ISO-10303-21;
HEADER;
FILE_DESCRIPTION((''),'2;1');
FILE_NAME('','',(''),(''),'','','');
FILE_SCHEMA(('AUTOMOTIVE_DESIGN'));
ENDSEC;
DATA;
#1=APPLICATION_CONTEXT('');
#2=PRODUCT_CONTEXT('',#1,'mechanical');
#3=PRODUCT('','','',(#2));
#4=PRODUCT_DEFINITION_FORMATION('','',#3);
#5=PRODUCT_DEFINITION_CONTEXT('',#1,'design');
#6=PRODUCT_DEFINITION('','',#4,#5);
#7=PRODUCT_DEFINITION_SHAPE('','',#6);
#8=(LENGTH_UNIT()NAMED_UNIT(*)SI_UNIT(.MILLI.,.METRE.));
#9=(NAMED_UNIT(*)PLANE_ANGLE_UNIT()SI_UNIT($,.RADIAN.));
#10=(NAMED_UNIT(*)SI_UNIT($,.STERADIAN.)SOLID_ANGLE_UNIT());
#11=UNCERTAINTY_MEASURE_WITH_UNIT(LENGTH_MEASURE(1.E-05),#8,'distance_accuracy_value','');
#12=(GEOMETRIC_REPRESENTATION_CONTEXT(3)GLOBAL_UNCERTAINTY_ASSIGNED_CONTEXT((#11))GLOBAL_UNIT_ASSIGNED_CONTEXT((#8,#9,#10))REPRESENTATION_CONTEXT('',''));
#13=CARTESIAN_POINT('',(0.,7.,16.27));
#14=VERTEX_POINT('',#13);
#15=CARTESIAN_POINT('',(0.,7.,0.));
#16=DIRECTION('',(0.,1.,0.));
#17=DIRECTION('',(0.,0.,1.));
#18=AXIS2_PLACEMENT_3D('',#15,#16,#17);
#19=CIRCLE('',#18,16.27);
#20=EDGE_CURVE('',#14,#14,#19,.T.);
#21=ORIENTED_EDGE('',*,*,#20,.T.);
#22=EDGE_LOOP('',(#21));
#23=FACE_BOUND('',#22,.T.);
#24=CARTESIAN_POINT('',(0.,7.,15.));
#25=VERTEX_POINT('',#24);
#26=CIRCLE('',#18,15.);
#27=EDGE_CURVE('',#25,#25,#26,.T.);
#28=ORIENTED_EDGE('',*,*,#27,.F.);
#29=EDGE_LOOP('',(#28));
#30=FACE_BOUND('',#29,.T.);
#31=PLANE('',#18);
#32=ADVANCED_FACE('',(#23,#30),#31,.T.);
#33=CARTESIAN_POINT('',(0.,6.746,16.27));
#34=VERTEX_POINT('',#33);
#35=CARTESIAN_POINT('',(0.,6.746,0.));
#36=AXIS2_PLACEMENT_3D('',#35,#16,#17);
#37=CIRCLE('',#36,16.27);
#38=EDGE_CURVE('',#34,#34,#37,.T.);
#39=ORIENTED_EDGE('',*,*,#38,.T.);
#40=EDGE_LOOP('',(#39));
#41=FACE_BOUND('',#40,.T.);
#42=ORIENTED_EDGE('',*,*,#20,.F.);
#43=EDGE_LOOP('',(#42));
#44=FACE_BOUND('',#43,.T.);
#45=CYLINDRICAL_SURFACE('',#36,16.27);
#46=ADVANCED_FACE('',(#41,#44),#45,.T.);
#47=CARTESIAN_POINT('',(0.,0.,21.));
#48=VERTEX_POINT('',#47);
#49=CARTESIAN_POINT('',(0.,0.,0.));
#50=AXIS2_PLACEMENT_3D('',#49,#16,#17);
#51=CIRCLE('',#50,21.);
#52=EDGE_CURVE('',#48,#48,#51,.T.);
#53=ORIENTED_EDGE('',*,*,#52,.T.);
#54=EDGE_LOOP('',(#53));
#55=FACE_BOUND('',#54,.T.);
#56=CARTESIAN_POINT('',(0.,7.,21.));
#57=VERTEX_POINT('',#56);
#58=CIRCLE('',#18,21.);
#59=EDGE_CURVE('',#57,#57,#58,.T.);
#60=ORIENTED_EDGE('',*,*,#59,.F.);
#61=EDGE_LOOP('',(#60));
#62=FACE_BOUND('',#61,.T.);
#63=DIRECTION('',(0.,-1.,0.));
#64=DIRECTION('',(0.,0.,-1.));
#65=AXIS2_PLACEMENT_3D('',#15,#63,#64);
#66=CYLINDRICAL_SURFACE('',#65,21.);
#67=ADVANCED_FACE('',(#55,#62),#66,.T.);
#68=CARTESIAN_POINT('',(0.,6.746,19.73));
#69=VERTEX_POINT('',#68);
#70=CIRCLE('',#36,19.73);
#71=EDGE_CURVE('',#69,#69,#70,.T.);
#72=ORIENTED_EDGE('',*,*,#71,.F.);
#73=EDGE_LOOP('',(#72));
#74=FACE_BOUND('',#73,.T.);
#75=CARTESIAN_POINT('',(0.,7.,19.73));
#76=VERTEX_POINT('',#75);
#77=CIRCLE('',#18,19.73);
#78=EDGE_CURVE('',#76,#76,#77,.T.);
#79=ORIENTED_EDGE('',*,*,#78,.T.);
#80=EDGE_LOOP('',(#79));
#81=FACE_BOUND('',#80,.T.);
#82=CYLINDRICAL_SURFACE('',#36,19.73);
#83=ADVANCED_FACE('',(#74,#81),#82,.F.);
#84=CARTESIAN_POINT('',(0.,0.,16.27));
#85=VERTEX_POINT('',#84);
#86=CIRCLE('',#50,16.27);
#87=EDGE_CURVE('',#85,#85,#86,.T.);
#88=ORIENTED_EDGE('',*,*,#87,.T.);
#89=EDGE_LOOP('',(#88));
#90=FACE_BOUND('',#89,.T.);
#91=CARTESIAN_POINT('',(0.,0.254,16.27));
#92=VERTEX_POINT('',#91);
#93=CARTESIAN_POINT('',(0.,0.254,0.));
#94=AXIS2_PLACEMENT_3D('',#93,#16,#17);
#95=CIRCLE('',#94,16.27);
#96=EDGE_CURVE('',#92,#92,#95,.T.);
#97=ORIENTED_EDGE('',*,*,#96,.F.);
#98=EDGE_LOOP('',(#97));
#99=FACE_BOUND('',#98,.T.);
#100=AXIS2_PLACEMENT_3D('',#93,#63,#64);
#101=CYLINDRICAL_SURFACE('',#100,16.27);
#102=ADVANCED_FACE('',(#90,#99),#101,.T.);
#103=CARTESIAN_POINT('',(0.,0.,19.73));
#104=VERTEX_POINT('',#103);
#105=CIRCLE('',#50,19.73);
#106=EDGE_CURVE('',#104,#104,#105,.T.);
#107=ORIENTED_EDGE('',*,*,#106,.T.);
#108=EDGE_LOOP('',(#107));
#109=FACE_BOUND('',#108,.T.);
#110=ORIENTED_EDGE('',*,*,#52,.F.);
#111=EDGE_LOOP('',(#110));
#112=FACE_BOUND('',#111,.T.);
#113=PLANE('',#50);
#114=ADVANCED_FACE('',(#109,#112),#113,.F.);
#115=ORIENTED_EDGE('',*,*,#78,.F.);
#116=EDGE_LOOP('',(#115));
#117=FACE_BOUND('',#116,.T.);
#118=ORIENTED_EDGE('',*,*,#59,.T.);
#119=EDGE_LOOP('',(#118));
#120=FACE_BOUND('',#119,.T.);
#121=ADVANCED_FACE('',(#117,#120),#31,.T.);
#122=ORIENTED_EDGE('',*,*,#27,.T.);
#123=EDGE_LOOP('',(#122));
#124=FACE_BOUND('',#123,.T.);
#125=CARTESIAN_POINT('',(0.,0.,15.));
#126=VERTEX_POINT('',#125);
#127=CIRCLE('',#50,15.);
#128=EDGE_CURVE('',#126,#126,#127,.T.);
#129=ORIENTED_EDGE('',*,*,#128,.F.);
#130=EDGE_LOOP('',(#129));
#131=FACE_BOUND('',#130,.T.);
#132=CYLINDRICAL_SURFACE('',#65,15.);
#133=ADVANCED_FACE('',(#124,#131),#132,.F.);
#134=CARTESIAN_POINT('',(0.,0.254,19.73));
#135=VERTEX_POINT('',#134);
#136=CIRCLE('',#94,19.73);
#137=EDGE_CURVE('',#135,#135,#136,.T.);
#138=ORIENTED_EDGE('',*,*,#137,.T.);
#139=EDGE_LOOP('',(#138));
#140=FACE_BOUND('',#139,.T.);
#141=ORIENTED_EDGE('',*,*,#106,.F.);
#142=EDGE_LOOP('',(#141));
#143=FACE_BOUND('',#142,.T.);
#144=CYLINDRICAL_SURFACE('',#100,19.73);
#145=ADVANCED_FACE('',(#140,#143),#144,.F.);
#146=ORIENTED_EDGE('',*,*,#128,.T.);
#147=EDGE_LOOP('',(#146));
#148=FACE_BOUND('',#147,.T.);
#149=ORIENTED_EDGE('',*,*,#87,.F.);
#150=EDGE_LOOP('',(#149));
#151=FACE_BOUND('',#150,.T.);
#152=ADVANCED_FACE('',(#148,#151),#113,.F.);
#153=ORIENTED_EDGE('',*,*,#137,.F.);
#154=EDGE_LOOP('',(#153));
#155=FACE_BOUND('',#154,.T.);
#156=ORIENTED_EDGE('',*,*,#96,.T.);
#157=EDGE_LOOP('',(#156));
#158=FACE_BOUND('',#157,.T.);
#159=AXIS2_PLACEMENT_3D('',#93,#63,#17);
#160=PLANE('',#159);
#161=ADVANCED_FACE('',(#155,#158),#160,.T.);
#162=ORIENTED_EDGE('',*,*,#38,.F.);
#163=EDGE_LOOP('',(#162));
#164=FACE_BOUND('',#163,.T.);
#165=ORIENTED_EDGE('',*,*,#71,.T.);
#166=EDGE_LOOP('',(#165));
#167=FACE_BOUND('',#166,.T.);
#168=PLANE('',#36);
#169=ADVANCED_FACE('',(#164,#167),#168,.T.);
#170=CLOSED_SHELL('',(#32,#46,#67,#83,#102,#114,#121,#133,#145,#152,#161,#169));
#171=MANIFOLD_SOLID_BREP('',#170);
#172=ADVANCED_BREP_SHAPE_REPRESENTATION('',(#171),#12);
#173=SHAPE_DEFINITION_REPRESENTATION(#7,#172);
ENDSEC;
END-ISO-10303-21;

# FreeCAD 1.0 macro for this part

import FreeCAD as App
import Part
import Sketcher
Q = App.Units.Quantity

doc = App.newDocument("Part")
body = doc.addObject("PartDesign::Body", "Body")

# Sketch on XZ plane
sketch1 = doc.addObject("Sketcher::SketchObject", "Sketch")
body.addObject(sketch1)
sketch1.AttachmentSupport = (doc.XZ_Plane, [""])
sketch1.MapMode = "FlatFace"
sketch1.addGeometry(Part.Circle(App.Vector(0, 0, 0), App.Vector(0, 0, 1), 21), False)
sketch1.addGeometry(Part.Circle(App.Vector(0, 0, 0), App.Vector(0, 0, 1), 15), False)
sketch1.addConstraint(Sketcher.Constraint("Coincident", 0, 3, -1, 1))
sketch1.addConstraint(Sketcher.Constraint("Coincident", 1, 3, -1, 1))
sketch1.addConstraint(Sketcher.Constraint("Diameter", 0, Q("42 mm")))
sketch1.addConstraint(Sketcher.Constraint("Diameter", 1, Q("30 mm")))
pad1 = doc.addObject("PartDesign::Pad", "Pad")
body.addObject(pad1)
pad1.Profile = sketch1
pad1.Length = 7
pad1.Reversed = True

# Sketch on XZ plane
sketch2 = doc.addObject("Sketcher::SketchObject", "Sketch001")
body.addObject(sketch2)
sketch2.AttachmentSupport = (doc.XZ_Plane, [""])
sketch2.MapMode = "FlatFace"
sketch2.AttachmentOffset = App.Placement(App.Vector(0, 0, -7), App.Rotation())
sketch2.addGeometry(Part.Circle(App.Vector(0, 0, 0), App.Vector(0, 0, 1), 19.73), False)
sketch2.addGeometry(Part.Circle(App.Vector(0, 0, 0), App.Vector(0, 0, 1), 16.27), False)
sketch2.addConstraint(Sketcher.Constraint("Coincident", 0, 3, -1, 1))
sketch2.addConstraint(Sketcher.Constraint("Coincident", 1, 3, -1, 1))
sketch2.addConstraint(Sketcher.Constraint("Diameter", 0, Q("39.46 mm")))
sketch2.addConstraint(Sketcher.Constraint("Diameter", 1, Q("32.54 mm")))
pocket1 = doc.addObject("PartDesign::Pocket", "Pocket")
body.addObject(pocket1)
pocket1.Profile = sketch2
pocket1.Length = 0.254
pocket1.Reversed = True
doc.recompute()

datumplane = doc.addObject("PartDesign::Plane", "DatumPlane")
body.addObject(datumplane)
datumplane.AttachmentSupport = (doc.XZ_Plane, [""])
datumplane.MapMode = "FlatFace"
datumplane.AttachmentOffset = App.Placement(App.Vector(0, 0, -3.5), App.Rotation())
mirrored = doc.addObject("PartDesign::Mirrored", "Mirrored")
body.addObject(mirrored)
mirrored.Originals = [pocket1]
mirrored.MirrorPlane = (datumplane, [""])
body.Tip = mirrored

doc.recompute()
